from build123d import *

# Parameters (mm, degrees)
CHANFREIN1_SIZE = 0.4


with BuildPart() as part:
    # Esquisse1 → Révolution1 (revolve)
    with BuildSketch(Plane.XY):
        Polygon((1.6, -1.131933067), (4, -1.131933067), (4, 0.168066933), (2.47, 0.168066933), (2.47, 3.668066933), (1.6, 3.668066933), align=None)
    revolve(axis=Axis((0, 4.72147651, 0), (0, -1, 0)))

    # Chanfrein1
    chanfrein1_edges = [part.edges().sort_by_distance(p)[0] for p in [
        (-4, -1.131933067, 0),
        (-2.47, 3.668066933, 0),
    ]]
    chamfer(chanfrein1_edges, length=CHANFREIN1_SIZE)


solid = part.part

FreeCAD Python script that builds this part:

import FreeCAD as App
import Part
import Sketcher
Q = App.Units.Quantity


def edges_at(feature, points):
    """Names of the edges that pass closest to the given points."""
    edges = feature.Shape.Edges
    near = lambda p: min(range(len(edges)), key=lambda i: edges[i].distToShape(Part.Vertex(*p))[0])
    return sorted({f"Edge{near(p) + 1}" for p in points})

doc = App.newDocument("Part")
body = doc.addObject("PartDesign::Body", "Body")

# Sketch on XY plane
sketch1 = body.newObject("Sketcher::SketchObject", "Sketch")
sketch1.AttachmentSupport = (doc.getObject("XY_Plane"), [""])
sketch1.MapMode = "FlatFace"
sketch1.addGeometry(Part.LineSegment(App.Vector(1.6, -1.131933, 0), App.Vector(4, -1.131933, 0)), False)
sketch1.addGeometry(Part.LineSegment(App.Vector(4, -1.131933, 0), App.Vector(4, 0.168067, 0)), False)
sketch1.addGeometry(Part.LineSegment(App.Vector(4, 0.168067, 0), App.Vector(2.47, 0.168067, 0)), False)
sketch1.addGeometry(Part.LineSegment(App.Vector(2.47, 0.168067, 0), App.Vector(2.47, 3.668067, 0)), False)
sketch1.addGeometry(Part.LineSegment(App.Vector(2.47, 3.668067, 0), App.Vector(1.6, 3.668067, 0)), False)
sketch1.addGeometry(Part.LineSegment(App.Vector(1.6, 3.668067, 0), App.Vector(1.6, -1.131933, 0)), False)
sketch1.addConstraint(Sketcher.Constraint("Coincident", 0, 2, 1, 1))
sketch1.addConstraint(Sketcher.Constraint("Coincident", 1, 2, 2, 1))
sketch1.addConstraint(Sketcher.Constraint("Coincident", 2, 2, 3, 1))
sketch1.addConstraint(Sketcher.Constraint("Coincident", 3, 2, 4, 1))
sketch1.addConstraint(Sketcher.Constraint("Coincident", 4, 2, 5, 1))
sketch1.addConstraint(Sketcher.Constraint("Coincident", 5, 2, 0, 1))
sketch1.addConstraint(Sketcher.Constraint("Horizontal", 0))
sketch1.addConstraint(Sketcher.Constraint("Vertical", 1))
sketch1.addConstraint(Sketcher.Constraint("Horizontal", 2))
sketch1.addConstraint(Sketcher.Constraint("Vertical", 3))
sketch1.addConstraint(Sketcher.Constraint("Horizontal", 4))
sketch1.addConstraint(Sketcher.Constraint("Vertical", 5))
sketch1.addConstraint(Sketcher.Constraint("DistanceX", 0, 1, 0, 2, Q("2.4 mm")))
sketch1.addConstraint(Sketcher.Constraint("DistanceY", 1, 1, 1, 2, Q("1.3 mm")))
sketch1.addConstraint(Sketcher.Constraint("DistanceY", 3, 1, 3, 2, Q("3.5 mm")))
sketch1.addConstraint(Sketcher.Constraint("DistanceX", -1, 1, 0, 2, Q("4 mm")))
sketch1.addConstraint(Sketcher.Constraint("DistanceX", 2, 2, 2, 1, Q("1.53 mm")))
sketch1.addConstraint(Sketcher.Constraint("DistanceY", 0, 2, -1, 1, Q("1.131933 mm")))
revolution = body.newObject("PartDesign::Revolution", "Revolution")
revolution.Profile = sketch1
revolution.ReferenceAxis = (sketch1, ["V_Axis"])
revolution.Angle = 360
doc.recompute()

chamfer = body.newObject("PartDesign::Chamfer", "Chamfer")
chamfer.Base = (revolution, edges_at(revolution, [(-4, -1.132, 0), (-2.47, 3.668, 0)]))
chamfer.Size = 0.4

doc.recompute()
